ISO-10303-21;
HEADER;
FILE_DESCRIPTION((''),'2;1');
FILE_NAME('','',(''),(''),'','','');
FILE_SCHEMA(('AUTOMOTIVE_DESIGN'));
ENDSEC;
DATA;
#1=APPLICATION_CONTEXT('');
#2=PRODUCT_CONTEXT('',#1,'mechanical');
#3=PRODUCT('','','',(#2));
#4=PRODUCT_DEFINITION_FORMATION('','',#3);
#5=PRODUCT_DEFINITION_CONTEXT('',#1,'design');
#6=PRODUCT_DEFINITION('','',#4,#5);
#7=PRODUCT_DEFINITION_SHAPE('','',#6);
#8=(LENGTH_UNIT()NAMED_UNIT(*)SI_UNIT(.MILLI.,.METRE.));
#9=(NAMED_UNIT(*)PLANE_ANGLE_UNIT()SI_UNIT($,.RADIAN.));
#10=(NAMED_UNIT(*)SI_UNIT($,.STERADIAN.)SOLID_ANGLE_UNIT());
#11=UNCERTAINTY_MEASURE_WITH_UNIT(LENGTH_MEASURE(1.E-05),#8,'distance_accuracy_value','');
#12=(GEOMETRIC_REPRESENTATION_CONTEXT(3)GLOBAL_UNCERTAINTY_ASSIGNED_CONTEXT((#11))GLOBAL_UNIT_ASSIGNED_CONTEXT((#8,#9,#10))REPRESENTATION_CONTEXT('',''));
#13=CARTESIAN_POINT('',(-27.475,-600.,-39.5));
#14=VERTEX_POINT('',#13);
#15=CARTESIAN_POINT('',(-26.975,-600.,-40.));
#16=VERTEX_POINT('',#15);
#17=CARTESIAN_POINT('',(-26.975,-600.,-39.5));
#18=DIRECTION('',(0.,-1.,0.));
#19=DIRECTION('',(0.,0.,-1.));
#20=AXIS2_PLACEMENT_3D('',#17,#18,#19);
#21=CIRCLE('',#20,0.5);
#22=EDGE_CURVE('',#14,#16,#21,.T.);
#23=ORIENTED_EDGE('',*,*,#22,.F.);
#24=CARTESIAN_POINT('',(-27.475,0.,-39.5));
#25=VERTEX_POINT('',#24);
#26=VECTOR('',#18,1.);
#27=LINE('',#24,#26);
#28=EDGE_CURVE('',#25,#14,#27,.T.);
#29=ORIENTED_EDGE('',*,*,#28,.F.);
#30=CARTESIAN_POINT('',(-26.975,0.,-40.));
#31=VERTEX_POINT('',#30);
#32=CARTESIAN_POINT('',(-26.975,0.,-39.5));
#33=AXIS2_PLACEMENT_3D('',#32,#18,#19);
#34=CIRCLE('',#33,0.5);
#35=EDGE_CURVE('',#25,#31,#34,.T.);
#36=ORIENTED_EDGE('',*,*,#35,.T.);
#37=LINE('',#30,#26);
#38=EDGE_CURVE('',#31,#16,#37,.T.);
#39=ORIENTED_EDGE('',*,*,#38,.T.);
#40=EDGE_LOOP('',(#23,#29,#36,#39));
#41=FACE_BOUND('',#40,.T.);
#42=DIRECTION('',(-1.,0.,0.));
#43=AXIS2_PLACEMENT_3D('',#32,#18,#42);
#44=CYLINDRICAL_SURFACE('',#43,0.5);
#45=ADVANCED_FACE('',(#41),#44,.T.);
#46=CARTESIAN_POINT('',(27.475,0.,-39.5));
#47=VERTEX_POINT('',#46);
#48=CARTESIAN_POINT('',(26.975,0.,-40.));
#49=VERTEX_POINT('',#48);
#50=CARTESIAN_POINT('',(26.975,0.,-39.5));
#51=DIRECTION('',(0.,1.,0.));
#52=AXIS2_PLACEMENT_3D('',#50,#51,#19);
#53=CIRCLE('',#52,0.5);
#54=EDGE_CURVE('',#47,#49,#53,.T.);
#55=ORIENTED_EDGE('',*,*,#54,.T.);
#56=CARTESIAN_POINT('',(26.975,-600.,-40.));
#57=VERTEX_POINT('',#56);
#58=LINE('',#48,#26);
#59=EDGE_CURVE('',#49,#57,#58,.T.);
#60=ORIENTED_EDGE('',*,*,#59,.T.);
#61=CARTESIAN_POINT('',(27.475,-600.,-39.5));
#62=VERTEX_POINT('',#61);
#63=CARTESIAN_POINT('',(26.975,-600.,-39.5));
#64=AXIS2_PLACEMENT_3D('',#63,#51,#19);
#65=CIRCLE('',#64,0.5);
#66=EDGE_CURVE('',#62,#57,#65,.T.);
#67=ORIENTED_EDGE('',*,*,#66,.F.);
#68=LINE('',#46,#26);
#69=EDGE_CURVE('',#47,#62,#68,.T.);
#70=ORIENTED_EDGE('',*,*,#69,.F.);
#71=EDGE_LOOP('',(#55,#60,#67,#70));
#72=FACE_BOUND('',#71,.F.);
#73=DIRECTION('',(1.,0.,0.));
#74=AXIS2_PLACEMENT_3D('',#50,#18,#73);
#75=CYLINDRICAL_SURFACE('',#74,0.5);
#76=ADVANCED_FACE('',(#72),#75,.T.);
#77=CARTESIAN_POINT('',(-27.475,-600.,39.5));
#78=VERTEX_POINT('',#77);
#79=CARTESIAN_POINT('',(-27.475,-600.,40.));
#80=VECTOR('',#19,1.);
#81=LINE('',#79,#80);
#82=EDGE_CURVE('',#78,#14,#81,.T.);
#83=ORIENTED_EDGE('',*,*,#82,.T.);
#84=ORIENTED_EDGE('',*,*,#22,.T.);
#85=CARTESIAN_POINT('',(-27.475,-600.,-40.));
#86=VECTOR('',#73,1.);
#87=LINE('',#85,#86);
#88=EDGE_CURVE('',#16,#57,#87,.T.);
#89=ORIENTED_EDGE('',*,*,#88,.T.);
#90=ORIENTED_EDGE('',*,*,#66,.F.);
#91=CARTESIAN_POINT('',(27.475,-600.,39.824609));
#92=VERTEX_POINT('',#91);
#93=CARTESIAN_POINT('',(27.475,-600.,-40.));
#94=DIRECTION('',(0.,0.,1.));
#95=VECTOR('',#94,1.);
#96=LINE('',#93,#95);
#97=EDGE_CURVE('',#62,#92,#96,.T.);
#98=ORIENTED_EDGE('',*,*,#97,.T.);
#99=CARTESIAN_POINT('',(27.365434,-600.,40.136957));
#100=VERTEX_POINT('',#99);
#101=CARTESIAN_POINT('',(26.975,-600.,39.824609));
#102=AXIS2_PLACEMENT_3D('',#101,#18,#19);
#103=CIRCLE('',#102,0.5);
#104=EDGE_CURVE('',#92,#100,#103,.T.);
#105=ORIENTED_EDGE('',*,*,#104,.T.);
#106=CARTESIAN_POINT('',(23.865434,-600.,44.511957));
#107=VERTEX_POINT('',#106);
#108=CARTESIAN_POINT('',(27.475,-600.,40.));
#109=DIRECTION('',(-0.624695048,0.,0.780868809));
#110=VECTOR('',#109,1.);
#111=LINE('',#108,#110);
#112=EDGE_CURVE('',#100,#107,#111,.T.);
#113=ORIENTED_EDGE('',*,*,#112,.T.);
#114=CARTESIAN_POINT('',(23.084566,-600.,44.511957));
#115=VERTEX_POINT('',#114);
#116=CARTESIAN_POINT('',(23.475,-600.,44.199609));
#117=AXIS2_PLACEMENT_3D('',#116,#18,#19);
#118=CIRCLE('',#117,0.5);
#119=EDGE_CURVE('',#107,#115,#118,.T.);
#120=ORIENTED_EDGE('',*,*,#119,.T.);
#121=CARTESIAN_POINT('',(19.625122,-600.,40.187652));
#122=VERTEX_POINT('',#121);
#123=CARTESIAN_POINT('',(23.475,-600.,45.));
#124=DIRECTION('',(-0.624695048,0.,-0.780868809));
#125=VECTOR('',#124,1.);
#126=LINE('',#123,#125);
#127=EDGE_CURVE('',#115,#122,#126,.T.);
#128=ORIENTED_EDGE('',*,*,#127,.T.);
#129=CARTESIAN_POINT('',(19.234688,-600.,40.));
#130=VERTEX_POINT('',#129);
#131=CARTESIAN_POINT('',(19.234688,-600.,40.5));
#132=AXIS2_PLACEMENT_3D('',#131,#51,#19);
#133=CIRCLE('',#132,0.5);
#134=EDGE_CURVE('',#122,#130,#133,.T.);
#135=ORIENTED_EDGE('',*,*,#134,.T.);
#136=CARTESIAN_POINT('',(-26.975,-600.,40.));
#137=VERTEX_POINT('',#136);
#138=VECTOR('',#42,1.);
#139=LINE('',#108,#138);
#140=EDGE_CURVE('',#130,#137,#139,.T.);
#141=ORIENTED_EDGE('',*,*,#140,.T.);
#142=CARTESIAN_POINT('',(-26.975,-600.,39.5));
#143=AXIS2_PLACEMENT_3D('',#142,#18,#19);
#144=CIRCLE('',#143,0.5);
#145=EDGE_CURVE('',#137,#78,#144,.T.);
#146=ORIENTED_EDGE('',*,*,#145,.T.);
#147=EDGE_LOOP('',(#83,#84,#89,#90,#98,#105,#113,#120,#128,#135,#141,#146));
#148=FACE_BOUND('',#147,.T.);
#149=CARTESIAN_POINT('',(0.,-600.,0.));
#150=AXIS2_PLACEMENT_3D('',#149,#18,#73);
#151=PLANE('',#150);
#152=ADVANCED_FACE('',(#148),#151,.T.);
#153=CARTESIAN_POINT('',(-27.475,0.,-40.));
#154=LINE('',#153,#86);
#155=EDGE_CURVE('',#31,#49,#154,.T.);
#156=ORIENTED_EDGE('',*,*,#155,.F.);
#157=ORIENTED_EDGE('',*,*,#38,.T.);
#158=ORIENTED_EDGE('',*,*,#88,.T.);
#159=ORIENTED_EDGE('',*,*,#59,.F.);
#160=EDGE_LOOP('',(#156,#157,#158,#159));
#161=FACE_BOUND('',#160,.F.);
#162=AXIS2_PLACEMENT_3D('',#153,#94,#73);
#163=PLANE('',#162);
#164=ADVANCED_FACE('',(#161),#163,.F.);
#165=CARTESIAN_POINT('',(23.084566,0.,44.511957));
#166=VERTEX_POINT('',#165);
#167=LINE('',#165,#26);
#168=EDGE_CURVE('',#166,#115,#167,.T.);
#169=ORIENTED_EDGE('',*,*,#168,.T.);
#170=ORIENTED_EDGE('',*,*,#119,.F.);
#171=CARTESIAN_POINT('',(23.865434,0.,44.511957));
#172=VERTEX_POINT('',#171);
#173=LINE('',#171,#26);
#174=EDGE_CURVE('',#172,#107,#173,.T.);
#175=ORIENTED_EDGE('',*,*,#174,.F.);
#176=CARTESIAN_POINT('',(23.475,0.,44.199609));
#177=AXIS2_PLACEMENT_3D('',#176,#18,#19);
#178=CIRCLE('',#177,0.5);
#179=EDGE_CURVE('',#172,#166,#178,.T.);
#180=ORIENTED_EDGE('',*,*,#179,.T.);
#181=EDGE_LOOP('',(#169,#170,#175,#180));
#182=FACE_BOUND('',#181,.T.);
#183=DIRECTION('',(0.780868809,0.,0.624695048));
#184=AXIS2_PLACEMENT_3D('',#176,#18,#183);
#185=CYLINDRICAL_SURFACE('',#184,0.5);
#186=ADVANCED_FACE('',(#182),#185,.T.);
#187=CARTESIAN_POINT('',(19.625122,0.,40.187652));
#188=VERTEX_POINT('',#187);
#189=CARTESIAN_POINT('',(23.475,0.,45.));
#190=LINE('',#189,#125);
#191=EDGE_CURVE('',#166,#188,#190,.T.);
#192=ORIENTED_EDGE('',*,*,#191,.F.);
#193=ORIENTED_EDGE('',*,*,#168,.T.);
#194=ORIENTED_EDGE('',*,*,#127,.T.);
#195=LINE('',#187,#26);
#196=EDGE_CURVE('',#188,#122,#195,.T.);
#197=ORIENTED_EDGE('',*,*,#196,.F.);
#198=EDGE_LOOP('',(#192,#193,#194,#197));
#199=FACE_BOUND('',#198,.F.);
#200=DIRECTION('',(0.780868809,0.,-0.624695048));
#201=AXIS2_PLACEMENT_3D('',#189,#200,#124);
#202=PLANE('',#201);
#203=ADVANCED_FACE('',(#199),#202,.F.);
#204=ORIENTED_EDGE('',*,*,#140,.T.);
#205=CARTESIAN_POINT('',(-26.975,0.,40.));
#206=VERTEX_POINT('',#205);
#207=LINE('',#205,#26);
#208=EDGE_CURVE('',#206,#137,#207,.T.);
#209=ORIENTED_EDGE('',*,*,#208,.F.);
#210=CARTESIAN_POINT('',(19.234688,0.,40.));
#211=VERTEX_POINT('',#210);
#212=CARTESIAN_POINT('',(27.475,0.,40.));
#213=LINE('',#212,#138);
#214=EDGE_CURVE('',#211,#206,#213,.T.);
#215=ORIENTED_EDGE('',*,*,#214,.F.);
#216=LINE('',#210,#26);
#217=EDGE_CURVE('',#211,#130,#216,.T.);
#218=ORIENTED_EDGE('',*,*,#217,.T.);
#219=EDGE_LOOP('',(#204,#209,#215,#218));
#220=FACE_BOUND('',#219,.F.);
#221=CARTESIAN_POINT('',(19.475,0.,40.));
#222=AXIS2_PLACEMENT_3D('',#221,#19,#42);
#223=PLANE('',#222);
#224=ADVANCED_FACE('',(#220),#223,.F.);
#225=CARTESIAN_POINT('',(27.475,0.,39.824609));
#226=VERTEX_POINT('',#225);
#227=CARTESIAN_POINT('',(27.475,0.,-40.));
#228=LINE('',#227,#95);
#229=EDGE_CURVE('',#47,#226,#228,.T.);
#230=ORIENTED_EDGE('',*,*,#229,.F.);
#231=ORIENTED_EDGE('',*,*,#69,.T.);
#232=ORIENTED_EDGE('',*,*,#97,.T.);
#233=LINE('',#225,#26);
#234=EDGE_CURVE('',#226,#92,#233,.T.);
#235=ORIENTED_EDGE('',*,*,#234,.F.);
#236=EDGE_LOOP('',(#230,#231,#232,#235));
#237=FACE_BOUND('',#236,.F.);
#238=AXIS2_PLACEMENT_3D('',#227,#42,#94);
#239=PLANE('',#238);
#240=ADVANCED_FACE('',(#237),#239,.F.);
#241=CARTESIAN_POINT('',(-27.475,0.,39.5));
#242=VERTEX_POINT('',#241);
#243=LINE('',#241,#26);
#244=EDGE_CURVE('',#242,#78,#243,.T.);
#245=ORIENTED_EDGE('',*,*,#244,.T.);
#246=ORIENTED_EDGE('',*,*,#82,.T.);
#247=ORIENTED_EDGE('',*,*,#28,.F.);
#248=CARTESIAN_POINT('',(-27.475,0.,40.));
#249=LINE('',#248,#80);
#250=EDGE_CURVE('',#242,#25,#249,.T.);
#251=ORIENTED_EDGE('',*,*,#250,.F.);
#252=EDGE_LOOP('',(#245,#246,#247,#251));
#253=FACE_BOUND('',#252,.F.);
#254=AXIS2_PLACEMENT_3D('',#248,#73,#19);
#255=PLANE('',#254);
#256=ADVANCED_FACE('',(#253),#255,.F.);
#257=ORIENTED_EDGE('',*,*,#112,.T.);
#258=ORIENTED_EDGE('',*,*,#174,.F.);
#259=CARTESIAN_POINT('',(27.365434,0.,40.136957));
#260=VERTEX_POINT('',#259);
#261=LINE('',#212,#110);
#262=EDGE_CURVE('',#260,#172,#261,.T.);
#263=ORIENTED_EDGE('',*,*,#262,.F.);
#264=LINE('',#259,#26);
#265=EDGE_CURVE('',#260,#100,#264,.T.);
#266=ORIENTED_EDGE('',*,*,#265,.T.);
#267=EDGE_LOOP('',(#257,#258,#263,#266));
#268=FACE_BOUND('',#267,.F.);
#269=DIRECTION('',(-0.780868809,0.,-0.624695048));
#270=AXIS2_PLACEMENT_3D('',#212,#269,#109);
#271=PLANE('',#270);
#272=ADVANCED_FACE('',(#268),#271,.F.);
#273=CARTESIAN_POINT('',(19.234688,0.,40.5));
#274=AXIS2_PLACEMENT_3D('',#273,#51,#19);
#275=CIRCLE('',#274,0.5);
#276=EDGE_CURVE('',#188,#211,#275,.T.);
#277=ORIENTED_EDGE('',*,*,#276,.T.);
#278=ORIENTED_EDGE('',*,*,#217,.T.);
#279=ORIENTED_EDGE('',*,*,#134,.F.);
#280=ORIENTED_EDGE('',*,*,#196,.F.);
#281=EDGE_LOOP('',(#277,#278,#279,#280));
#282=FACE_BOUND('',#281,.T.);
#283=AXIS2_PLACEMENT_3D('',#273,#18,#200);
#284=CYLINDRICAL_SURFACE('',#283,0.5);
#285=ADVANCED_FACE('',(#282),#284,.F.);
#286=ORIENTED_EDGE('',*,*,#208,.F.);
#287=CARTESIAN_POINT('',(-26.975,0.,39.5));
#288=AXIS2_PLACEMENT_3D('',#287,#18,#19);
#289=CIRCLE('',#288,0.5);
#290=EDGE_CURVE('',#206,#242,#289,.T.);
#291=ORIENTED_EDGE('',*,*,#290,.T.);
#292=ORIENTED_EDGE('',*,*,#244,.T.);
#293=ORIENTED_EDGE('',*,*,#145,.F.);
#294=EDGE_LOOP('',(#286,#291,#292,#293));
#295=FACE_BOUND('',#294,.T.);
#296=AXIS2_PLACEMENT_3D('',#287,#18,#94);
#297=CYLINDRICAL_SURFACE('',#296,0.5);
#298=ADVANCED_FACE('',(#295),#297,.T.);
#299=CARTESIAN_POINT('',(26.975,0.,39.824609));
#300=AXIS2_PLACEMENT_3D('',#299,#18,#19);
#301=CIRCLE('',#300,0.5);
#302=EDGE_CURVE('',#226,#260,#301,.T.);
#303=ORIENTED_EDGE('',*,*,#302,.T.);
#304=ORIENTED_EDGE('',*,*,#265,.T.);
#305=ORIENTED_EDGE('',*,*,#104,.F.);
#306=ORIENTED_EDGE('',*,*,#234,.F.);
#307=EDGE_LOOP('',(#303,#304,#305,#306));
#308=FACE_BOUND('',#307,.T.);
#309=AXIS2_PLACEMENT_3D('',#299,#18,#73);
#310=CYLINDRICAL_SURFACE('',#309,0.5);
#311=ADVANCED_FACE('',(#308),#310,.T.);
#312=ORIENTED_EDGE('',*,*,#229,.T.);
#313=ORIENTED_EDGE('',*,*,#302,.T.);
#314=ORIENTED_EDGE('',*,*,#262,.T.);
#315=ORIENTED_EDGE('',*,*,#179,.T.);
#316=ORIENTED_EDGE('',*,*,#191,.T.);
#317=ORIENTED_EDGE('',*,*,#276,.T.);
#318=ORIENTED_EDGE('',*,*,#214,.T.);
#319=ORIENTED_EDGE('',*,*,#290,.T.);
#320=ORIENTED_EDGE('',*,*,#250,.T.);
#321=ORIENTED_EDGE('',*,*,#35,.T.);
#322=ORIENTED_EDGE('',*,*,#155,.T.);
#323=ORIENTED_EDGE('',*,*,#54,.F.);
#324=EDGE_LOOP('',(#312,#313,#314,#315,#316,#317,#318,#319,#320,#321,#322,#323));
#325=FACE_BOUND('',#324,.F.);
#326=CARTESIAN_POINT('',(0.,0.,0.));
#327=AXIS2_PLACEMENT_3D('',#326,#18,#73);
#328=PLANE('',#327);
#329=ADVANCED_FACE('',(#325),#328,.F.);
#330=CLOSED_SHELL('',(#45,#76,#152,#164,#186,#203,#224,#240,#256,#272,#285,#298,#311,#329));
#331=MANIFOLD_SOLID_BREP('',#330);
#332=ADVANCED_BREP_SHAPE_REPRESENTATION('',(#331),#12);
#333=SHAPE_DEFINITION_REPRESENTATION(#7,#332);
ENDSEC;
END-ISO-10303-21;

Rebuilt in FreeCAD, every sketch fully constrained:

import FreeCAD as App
import Part
import Sketcher


def edges_at(feature, points):
    """Names of the edges that pass closest to the given points."""
    edges = feature.Shape.Edges
    near = lambda p: min(range(len(edges)), key=lambda i: edges[i].distToShape(Part.Vertex(*p))[0])
    return sorted({f"Edge{near(p) + 1}" for p in points})

doc = App.newDocument("Part")
params = doc.addObject("Spreadsheet::Sheet", "Params")
for row, (alias, value) in enumerate([
    ("sketch1_height", "80 mm"),
    ("sketch1_width", "46.95 mm"),
    ("pad1_length", "600 mm"),
    ("fillet_radius", "0.5 mm"),
], start=1):
    params.set(f"A{row}", alias)
    params.set(f"B{row}", "=" + value)
    params.setAlias(f"B{row}", alias)

body = doc.addObject("PartDesign::Body", "Body")

# Sketch on XZ plane
sketch1 = body.newObject("Sketcher::SketchObject", "Sketch")
sketch1.AttachmentSupport = (doc.getObject("XZ_Plane"), [""])
sketch1.MapMode = "FlatFace"
sketch1.addGeometry([
    Part.LineSegment(App.Vector(27, -40, 0), App.Vector(27, 40, 0)),  # 0
    Part.LineSegment(App.Vector(27, 40, 0), App.Vector(23, 45, 0)),  # 1
    Part.LineSegment(App.Vector(23, 45, 0), App.Vector(19, 40, 0)),  # 2
    Part.LineSegment(App.Vector(19, 40, 0), App.Vector(-27, 40, 0)),  # 3
    Part.LineSegment(App.Vector(-27, 40, 0), App.Vector(-27, -40, 0)),  # 4
    Part.LineSegment(App.Vector(-27, -40, 0), App.Vector(27, -40, 0)),  # 5
], False)
sketch1.addConstraint([
    Sketcher.Constraint("Coincident", 0, 2, 1, 1),
    Sketcher.Constraint("Coincident", 1, 2, 2, 1),
    Sketcher.Constraint("Coincident", 2, 2, 3, 1),
    Sketcher.Constraint("Coincident", 3, 2, 4, 1),
    Sketcher.Constraint("Coincident", 4, 2, 5, 1),
    Sketcher.Constraint("Coincident", 5, 2, 0, 1),
    Sketcher.Constraint("Vertical", 0),
    Sketcher.Constraint("Horizontal", 3),
    Sketcher.Constraint("Vertical", 4),
    Sketcher.Constraint("Horizontal", 5),
    Sketcher.Constraint("Symmetric", 0, 2, 4, 2, -1, 1),
    Sketcher.Constraint("Horizontal", 0, 2, 2, 2),
    Sketcher.Constraint("Equal", 1, 2),
    Sketcher.Constraint("DistanceY", 0, 1, 0, 2, 80.0),
    Sketcher.Constraint("DistanceY", -1, 1, 1, 2, 45.0),
    Sketcher.Constraint("DistanceX", 1, 2, 0, 2, 4.0),
    Sketcher.Constraint("DistanceX", 3, 2, 3, 1, 46.95),
])
sketch1.setExpression("Constraints[13]", "Params.sketch1_height")
sketch1.setExpression("Constraints[16]", "Params.sketch1_width")
pad1 = body.newObject("PartDesign::Pad", "Pad")
pad1.Profile = sketch1
pad1.setExpression("Length", "Params.pad1_length")
doc.recompute()

fillet = body.newObject("PartDesign::Fillet", "Fillet")
fillet.Base = (pad1, edges_at(pad1, [
    (23.475, -300, 45),
    (27.475, -300, 40),
    (19.475, -300, 40),
    (-27.475, -300, 40),
    (-27.475, -300, -40),
    (27.475, -300, -40),
]))
fillet.setExpression("Radius", "Params.fillet_radius")

doc.recompute()
